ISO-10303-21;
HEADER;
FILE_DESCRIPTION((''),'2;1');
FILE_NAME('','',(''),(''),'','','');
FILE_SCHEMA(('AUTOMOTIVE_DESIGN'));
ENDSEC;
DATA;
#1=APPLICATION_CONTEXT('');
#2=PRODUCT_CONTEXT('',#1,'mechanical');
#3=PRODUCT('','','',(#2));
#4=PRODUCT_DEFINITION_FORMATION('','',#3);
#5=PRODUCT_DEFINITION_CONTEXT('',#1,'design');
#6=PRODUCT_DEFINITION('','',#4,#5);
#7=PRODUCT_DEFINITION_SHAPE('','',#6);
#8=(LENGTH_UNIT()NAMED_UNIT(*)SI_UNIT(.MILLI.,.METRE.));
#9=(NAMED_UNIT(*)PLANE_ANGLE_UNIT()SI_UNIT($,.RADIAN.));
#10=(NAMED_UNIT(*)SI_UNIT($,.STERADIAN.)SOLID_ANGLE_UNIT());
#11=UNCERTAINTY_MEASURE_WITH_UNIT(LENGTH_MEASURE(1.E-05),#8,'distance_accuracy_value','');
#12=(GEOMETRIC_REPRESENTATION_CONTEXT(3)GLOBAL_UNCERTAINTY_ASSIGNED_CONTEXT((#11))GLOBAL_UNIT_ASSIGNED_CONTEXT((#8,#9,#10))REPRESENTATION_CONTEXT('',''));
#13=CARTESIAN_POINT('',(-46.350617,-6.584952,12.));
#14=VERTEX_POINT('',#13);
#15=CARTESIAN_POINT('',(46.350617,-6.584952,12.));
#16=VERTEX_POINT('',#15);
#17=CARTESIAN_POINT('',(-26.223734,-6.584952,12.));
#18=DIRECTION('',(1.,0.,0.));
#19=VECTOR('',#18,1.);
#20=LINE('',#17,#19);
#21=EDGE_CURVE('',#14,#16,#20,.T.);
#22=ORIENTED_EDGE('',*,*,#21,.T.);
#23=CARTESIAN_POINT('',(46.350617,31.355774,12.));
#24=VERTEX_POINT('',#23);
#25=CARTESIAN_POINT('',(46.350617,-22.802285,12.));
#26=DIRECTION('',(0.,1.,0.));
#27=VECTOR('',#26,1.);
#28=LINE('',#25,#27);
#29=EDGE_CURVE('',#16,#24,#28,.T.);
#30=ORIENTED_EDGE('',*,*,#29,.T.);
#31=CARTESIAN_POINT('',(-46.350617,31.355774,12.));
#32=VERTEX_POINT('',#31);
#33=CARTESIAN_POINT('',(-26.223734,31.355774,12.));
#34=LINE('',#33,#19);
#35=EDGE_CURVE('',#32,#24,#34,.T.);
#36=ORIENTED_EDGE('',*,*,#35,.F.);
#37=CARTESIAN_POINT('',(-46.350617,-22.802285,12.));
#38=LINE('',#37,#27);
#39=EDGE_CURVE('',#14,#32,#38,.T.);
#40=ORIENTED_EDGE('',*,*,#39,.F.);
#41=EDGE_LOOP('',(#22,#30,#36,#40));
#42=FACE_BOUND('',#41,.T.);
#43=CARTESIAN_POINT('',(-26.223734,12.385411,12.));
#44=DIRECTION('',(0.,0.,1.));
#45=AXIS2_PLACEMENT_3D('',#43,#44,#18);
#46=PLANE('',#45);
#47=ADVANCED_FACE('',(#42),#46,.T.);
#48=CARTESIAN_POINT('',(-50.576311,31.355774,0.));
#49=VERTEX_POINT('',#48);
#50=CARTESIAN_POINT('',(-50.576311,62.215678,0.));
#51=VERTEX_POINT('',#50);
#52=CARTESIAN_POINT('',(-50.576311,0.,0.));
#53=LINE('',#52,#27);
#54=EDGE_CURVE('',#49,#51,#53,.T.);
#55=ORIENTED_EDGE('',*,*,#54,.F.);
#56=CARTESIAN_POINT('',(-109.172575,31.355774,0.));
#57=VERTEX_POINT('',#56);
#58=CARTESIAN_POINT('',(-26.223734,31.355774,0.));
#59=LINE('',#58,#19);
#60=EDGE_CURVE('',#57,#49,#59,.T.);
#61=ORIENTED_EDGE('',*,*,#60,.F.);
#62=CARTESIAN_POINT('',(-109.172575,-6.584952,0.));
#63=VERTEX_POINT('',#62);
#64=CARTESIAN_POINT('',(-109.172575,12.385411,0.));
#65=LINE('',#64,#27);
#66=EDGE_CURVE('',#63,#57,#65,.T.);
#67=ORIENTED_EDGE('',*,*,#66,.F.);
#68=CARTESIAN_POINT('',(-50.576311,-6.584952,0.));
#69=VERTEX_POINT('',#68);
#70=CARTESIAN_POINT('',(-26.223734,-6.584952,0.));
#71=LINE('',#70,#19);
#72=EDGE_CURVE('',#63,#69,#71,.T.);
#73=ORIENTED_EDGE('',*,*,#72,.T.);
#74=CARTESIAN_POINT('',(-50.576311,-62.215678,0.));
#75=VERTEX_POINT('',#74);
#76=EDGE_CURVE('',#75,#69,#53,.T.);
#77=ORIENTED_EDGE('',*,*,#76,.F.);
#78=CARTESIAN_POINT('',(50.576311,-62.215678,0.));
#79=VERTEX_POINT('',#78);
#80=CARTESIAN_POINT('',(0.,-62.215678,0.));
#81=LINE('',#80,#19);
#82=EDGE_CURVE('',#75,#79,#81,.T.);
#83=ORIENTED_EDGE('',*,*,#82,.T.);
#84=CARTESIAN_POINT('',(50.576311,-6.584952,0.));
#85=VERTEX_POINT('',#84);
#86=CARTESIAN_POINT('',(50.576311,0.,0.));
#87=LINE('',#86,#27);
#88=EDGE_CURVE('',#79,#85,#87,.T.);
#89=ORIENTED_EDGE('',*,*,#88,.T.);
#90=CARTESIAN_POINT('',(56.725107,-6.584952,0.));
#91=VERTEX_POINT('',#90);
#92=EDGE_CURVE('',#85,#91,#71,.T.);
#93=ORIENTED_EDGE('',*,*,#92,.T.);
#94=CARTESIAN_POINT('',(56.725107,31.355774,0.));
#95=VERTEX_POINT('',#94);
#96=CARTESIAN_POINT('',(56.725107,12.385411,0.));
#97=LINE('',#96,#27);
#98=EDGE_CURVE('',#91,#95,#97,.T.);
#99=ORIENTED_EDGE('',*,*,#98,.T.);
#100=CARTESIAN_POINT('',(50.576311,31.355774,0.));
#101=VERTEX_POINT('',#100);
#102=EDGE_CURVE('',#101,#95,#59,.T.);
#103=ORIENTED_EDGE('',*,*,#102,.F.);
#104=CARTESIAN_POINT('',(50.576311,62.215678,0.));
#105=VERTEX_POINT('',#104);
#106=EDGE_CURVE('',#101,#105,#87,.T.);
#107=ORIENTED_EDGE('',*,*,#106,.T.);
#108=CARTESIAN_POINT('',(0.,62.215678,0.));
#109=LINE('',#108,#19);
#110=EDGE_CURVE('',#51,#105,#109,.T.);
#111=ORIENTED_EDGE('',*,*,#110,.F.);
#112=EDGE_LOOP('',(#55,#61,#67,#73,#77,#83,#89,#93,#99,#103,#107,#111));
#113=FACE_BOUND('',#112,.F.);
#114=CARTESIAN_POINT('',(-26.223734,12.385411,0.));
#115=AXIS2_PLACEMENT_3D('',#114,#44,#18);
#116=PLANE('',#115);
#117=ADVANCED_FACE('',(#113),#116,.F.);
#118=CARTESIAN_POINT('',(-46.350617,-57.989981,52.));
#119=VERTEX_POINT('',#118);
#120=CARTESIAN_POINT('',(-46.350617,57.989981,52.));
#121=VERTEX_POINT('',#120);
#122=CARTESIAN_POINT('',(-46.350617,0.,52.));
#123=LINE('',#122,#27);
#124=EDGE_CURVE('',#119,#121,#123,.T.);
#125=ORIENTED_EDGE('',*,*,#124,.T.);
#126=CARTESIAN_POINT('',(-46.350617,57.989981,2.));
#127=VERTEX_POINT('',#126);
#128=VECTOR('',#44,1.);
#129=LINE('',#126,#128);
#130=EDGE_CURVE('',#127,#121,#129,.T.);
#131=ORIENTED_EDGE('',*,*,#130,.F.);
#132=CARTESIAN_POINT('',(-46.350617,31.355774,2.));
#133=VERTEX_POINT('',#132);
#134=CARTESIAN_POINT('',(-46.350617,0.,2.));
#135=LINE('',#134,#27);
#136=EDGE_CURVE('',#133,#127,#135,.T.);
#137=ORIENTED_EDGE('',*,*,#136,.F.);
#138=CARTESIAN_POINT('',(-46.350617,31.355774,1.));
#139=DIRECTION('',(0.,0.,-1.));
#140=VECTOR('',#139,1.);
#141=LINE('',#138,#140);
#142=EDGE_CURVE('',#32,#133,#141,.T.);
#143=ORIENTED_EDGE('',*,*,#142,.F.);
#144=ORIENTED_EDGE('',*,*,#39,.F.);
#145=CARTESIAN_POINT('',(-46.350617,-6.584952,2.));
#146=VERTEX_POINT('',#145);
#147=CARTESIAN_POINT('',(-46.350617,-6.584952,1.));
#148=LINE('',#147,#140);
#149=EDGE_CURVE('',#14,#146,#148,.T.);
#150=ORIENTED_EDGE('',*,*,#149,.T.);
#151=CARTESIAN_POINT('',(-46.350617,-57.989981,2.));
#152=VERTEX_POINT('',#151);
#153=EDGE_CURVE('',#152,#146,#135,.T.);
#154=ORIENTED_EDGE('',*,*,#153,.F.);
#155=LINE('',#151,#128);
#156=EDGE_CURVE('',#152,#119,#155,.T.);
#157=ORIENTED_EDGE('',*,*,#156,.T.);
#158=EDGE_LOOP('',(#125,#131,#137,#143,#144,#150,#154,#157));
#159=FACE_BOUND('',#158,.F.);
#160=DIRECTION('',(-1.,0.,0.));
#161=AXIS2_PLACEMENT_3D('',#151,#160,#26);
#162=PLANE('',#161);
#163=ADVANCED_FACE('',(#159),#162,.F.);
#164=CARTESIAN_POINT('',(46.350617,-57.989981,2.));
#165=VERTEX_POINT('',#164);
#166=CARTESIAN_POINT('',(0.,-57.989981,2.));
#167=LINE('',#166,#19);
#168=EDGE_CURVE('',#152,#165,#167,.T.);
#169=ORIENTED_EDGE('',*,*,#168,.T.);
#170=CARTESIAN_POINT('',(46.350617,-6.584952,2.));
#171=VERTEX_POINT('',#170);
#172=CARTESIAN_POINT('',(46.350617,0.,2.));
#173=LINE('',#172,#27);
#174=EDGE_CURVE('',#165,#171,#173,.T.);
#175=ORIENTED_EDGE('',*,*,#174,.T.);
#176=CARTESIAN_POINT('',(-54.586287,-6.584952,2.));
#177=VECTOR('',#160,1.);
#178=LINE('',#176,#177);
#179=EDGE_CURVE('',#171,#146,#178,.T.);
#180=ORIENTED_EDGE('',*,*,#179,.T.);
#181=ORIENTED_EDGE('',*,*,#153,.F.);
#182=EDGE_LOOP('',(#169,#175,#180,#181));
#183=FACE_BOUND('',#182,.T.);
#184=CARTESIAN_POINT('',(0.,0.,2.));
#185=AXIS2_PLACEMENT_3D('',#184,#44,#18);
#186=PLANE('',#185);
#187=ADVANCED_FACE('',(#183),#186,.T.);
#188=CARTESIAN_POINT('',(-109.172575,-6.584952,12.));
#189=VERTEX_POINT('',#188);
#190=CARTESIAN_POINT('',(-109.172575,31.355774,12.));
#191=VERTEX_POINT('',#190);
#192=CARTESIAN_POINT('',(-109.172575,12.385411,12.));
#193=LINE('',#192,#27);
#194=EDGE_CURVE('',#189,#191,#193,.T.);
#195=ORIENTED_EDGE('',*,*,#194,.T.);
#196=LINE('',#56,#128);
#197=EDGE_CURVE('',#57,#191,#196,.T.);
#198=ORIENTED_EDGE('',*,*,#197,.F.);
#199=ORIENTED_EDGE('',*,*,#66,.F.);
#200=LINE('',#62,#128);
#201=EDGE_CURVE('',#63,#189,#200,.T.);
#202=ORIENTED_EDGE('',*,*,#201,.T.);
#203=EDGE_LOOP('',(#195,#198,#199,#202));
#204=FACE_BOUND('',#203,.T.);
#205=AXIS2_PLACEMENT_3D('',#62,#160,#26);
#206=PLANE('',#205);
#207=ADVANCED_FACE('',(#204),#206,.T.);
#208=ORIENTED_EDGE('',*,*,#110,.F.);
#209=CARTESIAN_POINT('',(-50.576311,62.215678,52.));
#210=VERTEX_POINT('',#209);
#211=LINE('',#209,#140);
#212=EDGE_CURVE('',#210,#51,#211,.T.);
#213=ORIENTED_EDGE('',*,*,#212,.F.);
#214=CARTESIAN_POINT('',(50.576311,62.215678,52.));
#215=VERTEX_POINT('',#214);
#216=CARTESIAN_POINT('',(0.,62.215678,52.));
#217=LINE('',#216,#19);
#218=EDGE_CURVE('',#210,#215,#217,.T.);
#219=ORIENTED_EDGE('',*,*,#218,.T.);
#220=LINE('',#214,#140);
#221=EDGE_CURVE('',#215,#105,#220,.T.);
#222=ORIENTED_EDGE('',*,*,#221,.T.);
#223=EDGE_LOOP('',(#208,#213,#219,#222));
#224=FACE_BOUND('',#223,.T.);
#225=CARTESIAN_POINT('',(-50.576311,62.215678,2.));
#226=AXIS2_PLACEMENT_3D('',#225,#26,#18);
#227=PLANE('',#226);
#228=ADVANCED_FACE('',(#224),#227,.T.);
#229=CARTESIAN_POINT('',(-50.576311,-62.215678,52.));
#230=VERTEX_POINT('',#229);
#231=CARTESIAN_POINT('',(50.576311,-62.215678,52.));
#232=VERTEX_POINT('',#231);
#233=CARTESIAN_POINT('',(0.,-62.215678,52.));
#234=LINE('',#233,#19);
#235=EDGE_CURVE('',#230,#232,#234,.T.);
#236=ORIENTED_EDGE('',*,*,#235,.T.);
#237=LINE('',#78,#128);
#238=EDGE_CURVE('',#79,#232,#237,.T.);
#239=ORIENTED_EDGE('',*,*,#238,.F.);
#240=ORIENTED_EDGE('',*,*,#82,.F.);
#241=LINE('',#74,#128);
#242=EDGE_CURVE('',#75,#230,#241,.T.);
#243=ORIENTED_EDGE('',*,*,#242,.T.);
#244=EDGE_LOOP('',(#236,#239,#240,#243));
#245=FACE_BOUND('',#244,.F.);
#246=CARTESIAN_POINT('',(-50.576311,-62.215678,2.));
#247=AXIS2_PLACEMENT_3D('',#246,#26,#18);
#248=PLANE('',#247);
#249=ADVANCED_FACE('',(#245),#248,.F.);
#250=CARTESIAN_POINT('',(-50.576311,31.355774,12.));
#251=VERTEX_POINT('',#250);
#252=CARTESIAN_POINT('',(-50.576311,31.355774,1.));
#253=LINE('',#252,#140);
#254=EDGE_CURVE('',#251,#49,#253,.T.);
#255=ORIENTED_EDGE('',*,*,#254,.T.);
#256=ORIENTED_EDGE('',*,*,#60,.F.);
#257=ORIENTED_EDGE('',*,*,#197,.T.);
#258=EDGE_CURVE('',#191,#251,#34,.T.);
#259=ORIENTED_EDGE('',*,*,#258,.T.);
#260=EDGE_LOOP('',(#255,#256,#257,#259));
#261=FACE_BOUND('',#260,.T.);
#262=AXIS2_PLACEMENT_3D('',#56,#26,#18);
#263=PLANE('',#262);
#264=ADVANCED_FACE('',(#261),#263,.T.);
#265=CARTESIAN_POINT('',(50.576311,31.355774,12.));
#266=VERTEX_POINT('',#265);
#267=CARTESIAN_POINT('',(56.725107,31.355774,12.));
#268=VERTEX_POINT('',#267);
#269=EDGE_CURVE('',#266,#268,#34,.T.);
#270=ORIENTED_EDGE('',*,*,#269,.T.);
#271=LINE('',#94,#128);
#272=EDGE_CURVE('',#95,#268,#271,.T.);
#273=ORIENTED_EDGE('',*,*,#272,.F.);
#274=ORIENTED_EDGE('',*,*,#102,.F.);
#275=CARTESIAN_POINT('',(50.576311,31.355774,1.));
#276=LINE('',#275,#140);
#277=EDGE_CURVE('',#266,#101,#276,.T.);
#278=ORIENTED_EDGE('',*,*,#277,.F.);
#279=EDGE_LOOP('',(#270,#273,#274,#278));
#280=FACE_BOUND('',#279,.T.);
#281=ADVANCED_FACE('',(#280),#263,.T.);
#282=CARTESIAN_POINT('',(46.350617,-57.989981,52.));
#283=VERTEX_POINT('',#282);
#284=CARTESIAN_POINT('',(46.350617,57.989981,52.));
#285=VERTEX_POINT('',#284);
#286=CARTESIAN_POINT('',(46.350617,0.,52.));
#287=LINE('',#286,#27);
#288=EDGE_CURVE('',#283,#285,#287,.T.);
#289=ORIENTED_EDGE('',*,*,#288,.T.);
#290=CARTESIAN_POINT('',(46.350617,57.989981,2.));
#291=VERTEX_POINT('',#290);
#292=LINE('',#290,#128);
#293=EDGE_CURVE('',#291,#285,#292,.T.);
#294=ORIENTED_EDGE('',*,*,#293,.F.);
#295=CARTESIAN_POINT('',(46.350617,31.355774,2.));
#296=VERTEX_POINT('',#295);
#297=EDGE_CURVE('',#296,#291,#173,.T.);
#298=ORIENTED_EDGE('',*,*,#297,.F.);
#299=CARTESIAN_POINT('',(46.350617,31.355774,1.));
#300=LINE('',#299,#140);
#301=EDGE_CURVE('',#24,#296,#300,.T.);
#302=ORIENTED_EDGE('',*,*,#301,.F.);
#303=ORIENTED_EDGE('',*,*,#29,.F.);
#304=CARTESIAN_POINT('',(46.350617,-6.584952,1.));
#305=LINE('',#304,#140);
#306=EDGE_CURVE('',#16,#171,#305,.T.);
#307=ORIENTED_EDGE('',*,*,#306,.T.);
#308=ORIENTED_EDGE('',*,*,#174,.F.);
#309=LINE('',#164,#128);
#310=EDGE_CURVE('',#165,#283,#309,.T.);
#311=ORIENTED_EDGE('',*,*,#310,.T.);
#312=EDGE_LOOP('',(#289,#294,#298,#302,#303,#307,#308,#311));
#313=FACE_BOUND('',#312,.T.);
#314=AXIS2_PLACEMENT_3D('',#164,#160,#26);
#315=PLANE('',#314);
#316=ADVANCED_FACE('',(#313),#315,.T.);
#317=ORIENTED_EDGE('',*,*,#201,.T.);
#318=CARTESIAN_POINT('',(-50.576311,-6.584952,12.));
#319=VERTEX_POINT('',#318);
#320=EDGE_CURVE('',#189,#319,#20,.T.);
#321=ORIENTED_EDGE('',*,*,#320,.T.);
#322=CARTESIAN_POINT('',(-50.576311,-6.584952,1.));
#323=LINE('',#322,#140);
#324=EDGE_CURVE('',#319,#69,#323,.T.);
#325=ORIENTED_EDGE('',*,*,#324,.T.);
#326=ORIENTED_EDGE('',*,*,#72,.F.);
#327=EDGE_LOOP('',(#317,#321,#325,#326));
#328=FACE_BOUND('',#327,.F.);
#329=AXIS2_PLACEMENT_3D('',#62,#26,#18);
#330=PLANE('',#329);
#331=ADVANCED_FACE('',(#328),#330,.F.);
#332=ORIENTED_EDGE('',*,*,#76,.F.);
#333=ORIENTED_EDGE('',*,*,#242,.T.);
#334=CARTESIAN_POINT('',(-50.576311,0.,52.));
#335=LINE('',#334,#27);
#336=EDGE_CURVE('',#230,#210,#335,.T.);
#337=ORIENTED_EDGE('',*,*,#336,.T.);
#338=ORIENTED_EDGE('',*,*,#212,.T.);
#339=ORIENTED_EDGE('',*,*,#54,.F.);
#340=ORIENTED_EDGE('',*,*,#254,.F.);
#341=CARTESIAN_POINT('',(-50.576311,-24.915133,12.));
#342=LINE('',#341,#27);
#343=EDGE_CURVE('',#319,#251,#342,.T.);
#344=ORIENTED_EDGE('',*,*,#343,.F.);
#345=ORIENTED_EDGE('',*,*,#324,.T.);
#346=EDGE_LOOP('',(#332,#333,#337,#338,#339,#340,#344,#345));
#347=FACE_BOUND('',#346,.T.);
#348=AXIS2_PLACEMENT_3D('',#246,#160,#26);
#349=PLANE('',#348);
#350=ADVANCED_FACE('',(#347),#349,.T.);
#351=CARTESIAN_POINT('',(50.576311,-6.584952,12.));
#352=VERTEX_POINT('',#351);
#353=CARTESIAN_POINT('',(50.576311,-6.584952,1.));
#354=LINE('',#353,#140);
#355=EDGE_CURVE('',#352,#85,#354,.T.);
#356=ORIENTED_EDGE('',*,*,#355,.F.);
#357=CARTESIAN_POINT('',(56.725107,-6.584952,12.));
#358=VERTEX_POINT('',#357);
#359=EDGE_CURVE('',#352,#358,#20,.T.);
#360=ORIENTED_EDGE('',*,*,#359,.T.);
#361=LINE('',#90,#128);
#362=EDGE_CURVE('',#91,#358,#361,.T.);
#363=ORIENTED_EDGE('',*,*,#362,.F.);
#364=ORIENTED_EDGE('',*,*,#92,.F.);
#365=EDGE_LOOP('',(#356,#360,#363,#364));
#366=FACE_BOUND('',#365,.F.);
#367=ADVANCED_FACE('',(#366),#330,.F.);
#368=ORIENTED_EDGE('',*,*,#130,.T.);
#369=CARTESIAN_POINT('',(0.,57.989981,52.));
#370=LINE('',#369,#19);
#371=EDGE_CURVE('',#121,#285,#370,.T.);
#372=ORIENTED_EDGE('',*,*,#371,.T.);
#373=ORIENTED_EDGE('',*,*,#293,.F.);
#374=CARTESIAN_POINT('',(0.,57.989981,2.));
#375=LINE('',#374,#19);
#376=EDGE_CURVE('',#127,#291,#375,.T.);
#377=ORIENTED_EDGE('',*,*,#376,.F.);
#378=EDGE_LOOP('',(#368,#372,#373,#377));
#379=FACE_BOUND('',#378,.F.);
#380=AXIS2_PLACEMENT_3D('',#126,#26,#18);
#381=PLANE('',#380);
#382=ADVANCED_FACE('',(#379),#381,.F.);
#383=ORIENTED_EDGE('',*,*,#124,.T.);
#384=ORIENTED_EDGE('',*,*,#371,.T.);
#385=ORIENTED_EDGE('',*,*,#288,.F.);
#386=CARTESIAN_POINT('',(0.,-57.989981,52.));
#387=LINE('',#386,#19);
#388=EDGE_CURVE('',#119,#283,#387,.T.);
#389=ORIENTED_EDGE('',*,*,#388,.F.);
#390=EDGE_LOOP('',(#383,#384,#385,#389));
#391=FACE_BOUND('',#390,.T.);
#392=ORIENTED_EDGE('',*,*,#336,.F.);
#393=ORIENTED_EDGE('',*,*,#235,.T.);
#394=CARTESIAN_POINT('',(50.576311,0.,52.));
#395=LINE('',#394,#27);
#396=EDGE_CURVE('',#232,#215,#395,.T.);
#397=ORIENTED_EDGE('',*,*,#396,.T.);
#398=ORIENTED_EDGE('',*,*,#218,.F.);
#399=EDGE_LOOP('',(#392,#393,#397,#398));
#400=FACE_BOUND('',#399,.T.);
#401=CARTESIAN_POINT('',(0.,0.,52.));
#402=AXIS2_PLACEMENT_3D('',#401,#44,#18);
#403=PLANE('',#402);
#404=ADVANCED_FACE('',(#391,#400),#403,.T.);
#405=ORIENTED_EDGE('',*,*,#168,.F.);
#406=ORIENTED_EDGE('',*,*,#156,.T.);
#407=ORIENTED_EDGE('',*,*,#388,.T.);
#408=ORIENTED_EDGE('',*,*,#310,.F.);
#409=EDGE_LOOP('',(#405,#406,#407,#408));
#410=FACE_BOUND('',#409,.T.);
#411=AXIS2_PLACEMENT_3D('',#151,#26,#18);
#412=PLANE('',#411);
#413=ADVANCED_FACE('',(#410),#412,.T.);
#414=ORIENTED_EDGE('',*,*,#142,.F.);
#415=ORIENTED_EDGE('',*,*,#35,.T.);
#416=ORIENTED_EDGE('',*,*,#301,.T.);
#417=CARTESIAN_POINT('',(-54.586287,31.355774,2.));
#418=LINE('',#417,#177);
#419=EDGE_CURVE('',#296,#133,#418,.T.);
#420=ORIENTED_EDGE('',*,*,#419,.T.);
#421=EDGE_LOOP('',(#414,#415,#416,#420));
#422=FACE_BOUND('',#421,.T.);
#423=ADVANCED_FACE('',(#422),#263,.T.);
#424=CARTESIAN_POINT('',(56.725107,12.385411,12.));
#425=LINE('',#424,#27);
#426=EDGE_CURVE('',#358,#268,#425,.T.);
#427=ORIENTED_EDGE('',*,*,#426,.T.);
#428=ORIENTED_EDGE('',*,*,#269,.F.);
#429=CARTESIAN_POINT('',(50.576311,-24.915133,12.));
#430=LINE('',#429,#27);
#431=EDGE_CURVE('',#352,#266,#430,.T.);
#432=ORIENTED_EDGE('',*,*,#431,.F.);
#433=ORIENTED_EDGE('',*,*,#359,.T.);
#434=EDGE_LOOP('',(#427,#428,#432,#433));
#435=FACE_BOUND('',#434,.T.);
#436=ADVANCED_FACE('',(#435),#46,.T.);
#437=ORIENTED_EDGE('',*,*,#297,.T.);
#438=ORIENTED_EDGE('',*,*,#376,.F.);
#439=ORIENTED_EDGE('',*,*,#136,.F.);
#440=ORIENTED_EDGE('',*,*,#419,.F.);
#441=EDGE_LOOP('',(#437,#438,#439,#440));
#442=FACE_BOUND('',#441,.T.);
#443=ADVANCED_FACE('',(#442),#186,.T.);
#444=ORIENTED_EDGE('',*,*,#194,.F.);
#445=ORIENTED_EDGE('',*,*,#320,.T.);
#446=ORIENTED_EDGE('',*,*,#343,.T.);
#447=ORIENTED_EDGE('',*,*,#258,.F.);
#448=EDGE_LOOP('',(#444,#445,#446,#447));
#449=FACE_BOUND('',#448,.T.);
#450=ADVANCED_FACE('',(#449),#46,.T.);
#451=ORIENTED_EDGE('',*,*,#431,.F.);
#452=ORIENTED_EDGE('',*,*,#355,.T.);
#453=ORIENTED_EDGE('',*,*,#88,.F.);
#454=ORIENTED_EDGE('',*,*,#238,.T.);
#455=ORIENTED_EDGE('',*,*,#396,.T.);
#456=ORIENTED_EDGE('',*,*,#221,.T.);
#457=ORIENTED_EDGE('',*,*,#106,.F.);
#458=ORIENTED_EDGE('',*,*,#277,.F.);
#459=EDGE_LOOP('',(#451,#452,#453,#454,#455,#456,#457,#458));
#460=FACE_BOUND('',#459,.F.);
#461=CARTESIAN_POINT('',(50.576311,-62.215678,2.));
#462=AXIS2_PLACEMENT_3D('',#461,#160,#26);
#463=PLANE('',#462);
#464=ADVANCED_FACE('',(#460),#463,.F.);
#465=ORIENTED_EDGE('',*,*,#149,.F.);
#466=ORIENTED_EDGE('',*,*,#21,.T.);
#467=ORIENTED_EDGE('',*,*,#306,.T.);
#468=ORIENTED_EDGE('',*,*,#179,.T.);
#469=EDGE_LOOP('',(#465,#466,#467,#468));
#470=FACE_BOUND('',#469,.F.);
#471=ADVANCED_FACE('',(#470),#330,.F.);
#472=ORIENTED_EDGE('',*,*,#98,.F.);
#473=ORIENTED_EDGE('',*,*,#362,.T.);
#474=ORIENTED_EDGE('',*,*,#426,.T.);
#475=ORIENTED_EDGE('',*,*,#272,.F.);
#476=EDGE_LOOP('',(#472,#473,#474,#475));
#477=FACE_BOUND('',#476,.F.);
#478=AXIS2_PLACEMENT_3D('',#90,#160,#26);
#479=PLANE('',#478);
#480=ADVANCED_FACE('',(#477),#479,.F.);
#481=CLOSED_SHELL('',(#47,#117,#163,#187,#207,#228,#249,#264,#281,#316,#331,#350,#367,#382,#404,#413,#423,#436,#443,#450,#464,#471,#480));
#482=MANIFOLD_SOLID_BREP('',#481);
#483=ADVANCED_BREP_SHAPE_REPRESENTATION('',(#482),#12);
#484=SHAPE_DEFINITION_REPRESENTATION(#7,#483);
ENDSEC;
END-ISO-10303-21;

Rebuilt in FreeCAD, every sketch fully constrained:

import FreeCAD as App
import Part
import Sketcher


def add_polygon(sketch, points):
    """Adds a closed chain of lines whose ends are joined by coincident constraints."""
    first, n = sketch.GeometryCount, len(points)
    for a, b in zip(points, points[1:] + points[:1]):
        sketch.addGeometry(Part.LineSegment(App.Vector(*a, 0), App.Vector(*b, 0)), False)
    for i in range(n):
        sketch.addConstraint(Sketcher.Constraint("Coincident", first + i, 2, first + (i + 1) % n, 1))

doc = App.newDocument("Part")
body = doc.addObject("PartDesign::Body", "Body")

# Sketch on XY plane
sketch1 = body.newObject("Sketcher::SketchObject", "Sketch")
sketch1.AttachmentSupport = (doc.getObject("XY_Plane"), [""])
sketch1.MapMode = "FlatFace"
add_polygon(sketch1, [(-50.576311, 62.215678), (-50.576311, -62.215678), (50.576311, -62.215678), (50.576311, 62.215678)])  # lines 0-3
sketch1.addConstraint(Sketcher.Constraint("Vertical", 0))
sketch1.addConstraint(Sketcher.Constraint("Horizontal", 1))
sketch1.addConstraint(Sketcher.Constraint("Vertical", 2))
sketch1.addConstraint(Sketcher.Constraint("Horizontal", 3))
sketch1.addConstraint(Sketcher.Constraint("Symmetric", 0, 2, 2, 2, -1, 1))
sketch1.addConstraint(Sketcher.Constraint("DistanceX", 1, 1, 1, 2, 101.152622))
sketch1.addConstraint(Sketcher.Constraint("DistanceY", 0, 2, 0, 1, 124.431356))
pad1 = body.newObject("PartDesign::Pad", "Pad")
pad1.Profile = sketch1
pad1.Length = 2

# Sketch on XY plane
sketch2 = body.newObject("Sketcher::SketchObject", "Sketch001")
sketch2.AttachmentSupport = (doc.getObject("XY_Plane"), [""])
sketch2.MapMode = "FlatFace"
sketch2.AttachmentOffset = App.Placement(App.Vector(0, 0, 2), App.Rotation())
add_polygon(sketch2, [(-50.576311, 62.215678), (-50.576311, -62.215678), (50.576311, -62.215678), (50.576311, 62.215678)])  # lines 0-3
add_polygon(sketch2, [(46.350617, -57.989981), (-46.350617, -57.989981), (-46.350617, 57.989981), (46.350617, 57.989981)])  # lines 4-7
sketch2.addConstraint(Sketcher.Constraint("Vertical", 0))
sketch2.addConstraint(Sketcher.Constraint("Horizontal", 1))
sketch2.addConstraint(Sketcher.Constraint("Vertical", 2))
sketch2.addConstraint(Sketcher.Constraint("Horizontal", 3))
sketch2.addConstraint(Sketcher.Constraint("Horizontal", 4))
sketch2.addConstraint(Sketcher.Constraint("Vertical", 5))
sketch2.addConstraint(Sketcher.Constraint("Horizontal", 6))
sketch2.addConstraint(Sketcher.Constraint("Vertical", 7))
sketch2.addConstraint(Sketcher.Constraint("Symmetric", 0, 2, 2, 2, -1, 1))
sketch2.addConstraint(Sketcher.Constraint("Symmetric", 4, 2, 6, 2, -1, 1))
sketch2.addConstraint(Sketcher.Constraint("DistanceX", 1, 1, 1, 2, 101.152622))
sketch2.addConstraint(Sketcher.Constraint("DistanceY", 5, 1, 5, 2, 115.979962))
sketch2.addConstraint(Sketcher.Constraint("DistanceX", 4, 2, 4, 1, 92.701234))
sketch2.addConstraint(Sketcher.Constraint("DistanceY", 0, 2, 0, 1, 124.431356))
pad2 = body.newObject("PartDesign::Pad", "Pad001")
pad2.Profile = sketch2
pad2.Length = 50

# Sketch on XY plane
sketch3 = body.newObject("Sketcher::SketchObject", "Sketch002")
sketch3.AttachmentSupport = (doc.getObject("XY_Plane"), [""])
sketch3.MapMode = "FlatFace"
add_polygon(sketch3, [(-109.172575, 31.355774), (-109.172575, -6.584952), (56.725107, -6.584952), (56.725107, 31.355774)])  # lines 0-3
sketch3.addConstraint(Sketcher.Constraint("Vertical", 0))
sketch3.addConstraint(Sketcher.Constraint("Horizontal", 1))
sketch3.addConstraint(Sketcher.Constraint("Vertical", 2))
sketch3.addConstraint(Sketcher.Constraint("Horizontal", 3))
sketch3.addConstraint(Sketcher.Constraint("DistanceX", 1, 1, 1, 2, 165.897682))
sketch3.addConstraint(Sketcher.Constraint("DistanceY", 0, 2, 0, 1, 37.940726))
sketch3.addConstraint(Sketcher.Constraint("DistanceX", 0, 2, -1, 1, 109.172575))
sketch3.addConstraint(Sketcher.Constraint("DistanceY", 0, 2, -1, 1, 6.584952))
pad3 = body.newObject("PartDesign::Pad", "Pad002")
pad3.Profile = sketch3
pad3.Length = 12

doc.recompute()
